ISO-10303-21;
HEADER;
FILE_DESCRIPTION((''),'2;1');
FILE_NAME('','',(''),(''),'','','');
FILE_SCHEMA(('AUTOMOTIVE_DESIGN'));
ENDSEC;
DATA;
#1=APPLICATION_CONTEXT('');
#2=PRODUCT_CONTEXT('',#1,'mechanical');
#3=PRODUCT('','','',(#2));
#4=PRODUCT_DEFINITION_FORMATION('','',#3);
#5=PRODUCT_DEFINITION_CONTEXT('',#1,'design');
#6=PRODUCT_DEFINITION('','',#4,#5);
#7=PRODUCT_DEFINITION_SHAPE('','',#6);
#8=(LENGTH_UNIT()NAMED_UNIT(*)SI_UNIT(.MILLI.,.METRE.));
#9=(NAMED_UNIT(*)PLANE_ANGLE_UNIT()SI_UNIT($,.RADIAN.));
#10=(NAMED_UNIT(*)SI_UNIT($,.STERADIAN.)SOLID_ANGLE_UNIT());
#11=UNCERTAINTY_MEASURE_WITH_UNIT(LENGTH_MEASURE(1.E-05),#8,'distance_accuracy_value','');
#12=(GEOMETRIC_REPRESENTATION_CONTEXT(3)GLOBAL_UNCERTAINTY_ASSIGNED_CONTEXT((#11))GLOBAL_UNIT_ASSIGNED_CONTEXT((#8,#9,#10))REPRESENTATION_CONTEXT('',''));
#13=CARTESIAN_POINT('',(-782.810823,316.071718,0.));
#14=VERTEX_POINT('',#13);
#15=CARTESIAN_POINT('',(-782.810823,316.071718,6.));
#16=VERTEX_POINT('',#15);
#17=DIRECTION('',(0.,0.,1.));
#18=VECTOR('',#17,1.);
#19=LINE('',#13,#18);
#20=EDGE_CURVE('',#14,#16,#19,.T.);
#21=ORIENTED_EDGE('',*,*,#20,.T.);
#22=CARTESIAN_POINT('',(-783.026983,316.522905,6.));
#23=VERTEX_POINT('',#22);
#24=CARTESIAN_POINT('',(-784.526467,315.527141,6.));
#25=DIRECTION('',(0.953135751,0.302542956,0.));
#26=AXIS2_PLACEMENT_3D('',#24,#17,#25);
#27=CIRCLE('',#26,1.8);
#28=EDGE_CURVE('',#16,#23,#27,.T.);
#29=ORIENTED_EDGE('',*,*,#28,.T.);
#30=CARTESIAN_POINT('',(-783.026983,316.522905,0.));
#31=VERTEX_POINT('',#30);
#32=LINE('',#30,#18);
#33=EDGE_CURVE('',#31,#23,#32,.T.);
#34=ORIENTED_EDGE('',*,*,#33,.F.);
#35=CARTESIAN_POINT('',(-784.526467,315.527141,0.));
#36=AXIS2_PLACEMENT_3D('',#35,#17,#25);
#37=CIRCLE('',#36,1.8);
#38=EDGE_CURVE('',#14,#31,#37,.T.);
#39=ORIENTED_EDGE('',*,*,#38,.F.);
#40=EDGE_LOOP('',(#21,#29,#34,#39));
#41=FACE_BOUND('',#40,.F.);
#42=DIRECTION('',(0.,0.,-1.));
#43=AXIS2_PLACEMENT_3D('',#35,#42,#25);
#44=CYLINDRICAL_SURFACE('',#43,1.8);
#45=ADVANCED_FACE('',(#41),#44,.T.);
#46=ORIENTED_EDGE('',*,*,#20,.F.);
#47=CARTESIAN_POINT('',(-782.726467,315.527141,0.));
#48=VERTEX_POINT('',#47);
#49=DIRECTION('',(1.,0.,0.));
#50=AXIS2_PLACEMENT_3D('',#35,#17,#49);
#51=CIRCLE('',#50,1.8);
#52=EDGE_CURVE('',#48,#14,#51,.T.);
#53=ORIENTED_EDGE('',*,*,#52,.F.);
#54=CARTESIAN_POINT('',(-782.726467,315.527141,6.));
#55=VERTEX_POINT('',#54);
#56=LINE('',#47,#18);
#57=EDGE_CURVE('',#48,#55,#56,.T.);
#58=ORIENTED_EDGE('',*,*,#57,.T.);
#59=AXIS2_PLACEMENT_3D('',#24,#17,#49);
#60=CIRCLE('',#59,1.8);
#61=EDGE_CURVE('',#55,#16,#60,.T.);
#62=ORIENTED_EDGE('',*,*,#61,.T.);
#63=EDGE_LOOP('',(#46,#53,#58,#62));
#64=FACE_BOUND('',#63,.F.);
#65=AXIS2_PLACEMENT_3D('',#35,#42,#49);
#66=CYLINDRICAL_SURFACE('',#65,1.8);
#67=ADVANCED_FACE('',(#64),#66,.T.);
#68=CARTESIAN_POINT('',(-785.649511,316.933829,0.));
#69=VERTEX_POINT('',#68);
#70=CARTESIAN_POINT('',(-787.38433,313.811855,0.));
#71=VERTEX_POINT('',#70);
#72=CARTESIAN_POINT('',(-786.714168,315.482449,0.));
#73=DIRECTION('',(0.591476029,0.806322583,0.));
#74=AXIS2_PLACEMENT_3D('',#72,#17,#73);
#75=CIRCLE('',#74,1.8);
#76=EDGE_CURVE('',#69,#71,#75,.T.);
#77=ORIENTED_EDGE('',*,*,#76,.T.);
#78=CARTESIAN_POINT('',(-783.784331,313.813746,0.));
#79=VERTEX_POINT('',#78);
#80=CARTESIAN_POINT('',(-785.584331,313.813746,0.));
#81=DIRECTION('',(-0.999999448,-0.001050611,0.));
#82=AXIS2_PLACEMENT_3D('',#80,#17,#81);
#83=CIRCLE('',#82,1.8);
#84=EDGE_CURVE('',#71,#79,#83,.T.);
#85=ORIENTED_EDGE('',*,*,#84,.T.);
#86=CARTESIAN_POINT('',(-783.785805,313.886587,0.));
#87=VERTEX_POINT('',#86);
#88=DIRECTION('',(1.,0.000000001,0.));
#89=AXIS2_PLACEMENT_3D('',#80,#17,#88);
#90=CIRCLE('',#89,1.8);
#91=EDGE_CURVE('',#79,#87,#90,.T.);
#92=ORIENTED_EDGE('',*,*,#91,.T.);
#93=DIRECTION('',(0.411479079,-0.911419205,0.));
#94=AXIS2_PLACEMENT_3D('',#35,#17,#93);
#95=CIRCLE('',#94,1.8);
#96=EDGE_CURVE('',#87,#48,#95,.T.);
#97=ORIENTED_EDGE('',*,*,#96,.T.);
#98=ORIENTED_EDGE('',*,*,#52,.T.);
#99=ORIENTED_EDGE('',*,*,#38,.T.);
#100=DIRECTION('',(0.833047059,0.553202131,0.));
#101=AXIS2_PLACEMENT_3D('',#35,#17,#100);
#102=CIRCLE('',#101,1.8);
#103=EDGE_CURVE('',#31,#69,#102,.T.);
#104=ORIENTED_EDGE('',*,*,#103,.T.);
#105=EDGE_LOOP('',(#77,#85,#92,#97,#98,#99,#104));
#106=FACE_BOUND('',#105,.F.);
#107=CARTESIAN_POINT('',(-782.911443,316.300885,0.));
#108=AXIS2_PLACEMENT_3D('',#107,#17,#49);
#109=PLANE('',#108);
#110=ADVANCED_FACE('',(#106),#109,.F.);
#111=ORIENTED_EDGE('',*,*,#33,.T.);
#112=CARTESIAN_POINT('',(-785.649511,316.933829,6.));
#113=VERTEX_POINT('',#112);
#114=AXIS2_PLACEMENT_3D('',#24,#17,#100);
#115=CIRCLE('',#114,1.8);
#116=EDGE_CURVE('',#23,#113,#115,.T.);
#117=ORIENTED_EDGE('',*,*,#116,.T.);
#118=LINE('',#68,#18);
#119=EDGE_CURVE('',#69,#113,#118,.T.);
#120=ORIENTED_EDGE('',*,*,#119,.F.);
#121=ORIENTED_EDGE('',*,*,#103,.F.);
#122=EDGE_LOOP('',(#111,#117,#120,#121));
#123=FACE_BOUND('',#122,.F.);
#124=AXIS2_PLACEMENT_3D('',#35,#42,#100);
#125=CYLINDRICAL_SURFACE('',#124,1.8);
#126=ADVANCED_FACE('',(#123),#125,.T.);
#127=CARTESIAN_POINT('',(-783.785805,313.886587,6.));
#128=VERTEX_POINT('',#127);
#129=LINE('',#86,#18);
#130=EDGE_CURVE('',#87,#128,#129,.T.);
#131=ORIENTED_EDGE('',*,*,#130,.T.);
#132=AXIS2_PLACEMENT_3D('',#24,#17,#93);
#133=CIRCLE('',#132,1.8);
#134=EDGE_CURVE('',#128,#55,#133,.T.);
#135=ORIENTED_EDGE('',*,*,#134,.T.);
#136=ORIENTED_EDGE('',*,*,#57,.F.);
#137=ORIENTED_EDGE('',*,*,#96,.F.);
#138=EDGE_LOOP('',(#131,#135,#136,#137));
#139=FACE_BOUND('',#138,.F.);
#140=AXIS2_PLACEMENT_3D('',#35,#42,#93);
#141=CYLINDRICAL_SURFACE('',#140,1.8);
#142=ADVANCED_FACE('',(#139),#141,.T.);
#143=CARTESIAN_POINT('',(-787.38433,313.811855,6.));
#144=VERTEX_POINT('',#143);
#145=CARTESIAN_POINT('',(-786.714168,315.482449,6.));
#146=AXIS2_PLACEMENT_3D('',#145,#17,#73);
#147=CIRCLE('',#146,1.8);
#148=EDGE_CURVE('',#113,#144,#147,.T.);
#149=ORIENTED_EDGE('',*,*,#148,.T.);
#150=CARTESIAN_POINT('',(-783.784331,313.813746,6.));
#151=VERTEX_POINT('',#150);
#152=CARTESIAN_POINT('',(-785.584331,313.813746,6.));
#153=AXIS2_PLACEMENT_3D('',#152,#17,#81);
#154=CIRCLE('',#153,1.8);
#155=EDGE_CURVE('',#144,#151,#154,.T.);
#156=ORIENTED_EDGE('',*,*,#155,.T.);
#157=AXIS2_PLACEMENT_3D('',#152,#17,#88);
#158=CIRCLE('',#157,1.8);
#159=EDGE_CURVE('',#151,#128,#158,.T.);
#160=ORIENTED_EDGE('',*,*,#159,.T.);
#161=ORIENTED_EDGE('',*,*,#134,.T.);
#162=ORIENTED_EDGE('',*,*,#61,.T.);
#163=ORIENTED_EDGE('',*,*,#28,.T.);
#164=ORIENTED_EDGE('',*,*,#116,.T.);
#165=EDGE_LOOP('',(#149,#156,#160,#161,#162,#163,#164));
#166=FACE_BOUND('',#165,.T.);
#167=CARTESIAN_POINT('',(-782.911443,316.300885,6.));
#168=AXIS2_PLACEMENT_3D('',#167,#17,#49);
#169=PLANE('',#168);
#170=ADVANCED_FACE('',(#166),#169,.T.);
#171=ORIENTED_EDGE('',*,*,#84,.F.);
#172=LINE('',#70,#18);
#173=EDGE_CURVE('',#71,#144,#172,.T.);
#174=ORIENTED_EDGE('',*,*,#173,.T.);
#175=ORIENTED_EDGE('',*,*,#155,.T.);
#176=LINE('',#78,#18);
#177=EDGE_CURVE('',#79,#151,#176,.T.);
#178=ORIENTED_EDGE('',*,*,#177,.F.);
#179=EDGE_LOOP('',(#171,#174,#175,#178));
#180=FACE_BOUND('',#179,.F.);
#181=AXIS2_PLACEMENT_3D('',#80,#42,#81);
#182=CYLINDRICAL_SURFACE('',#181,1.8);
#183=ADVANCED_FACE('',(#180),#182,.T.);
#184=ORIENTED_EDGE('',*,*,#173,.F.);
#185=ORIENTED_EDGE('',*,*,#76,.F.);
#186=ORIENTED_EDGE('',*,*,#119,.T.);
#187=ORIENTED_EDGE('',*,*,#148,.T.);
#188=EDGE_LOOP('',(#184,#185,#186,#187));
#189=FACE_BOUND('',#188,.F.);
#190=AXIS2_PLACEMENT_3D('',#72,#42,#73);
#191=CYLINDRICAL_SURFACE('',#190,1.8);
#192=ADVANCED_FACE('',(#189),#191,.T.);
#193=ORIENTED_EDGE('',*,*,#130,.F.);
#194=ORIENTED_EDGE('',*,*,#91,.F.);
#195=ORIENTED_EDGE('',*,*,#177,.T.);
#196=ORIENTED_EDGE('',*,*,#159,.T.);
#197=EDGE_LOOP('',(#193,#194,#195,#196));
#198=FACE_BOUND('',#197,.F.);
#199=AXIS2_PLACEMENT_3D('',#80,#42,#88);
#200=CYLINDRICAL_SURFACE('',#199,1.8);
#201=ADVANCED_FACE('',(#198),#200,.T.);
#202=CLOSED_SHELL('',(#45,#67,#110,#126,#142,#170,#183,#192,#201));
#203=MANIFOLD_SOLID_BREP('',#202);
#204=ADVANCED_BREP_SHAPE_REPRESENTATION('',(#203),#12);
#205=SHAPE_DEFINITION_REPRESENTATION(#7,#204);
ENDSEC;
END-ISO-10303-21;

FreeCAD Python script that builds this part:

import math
import FreeCAD as App
import Part
import Sketcher

V = App.Vector
Q = App.Units.Quantity

doc = App.newDocument("Part")
body = doc.addObject("PartDesign::Body", "Body")

sketch1 = body.newObject("Sketcher::SketchObject", "Sketch")
sketch1.AttachmentSupport = (doc.getObject("XY_Plane"), [""])
sketch1.MapMode = "FlatFace"
sketch1.addGeometry(Part.ArcOfCircle(Part.Circle(V(-784.53, 315.53, 0), V(0, 0, 1), 1.8), math.radians(34), math.radians(129)), False)
sketch1.addGeometry(Part.ArcOfCircle(Part.Circle(V(-786.71, 315.48, 0), V(0, 0, 1), 1.8), math.radians(54), math.radians(248)), False)
sketch1.addGeometry(Part.ArcOfCircle(Part.Circle(V(-785.58, 313.81, 0), V(0, 0, 1), 1.8), math.radians(-180), math.radians(0)), False)
sketch1.addGeometry(Part.ArcOfCircle(Part.Circle(V(-785.58, 313.81, 0), V(0, 0, 1), 1.8), math.radians(0), math.radians(2.32)), False)
sketch1.addGeometry(Part.ArcOfCircle(Part.Circle(V(-784.53, 315.53, 0), V(0, 0, 1), 1.8), math.radians(-66), math.radians(0)), False)
sketch1.addGeometry(Part.ArcOfCircle(Part.Circle(V(-784.53, 315.53, 0), V(0, 0, 1), 1.8), math.radians(0), math.radians(17.61)), False)
sketch1.addGeometry(Part.ArcOfCircle(Part.Circle(V(-784.53, 315.53, 0), V(0, 0, 1), 1.8), math.radians(17.61), math.radians(33.59)), False)
sketch1.addConstraint(Sketcher.Constraint("Coincident", 0, 2, 1, 1))
sketch1.addConstraint(Sketcher.Constraint("Coincident", 1, 2, 2, 1))
sketch1.addConstraint(Sketcher.Constraint("Tangent", 2, 2, 3, 1))
sketch1.addConstraint(Sketcher.Constraint("Coincident", 3, 2, 4, 1))
sketch1.addConstraint(Sketcher.Constraint("Tangent", 4, 2, 5, 1))
sketch1.addConstraint(Sketcher.Constraint("Tangent", 5, 2, 6, 1))
sketch1.addConstraint(Sketcher.Constraint("Tangent", 6, 2, 0, 1))
sketch1.addConstraint(Sketcher.Constraint("Coincident", 4, 3, 0, 3))
sketch1.addConstraint(Sketcher.Constraint("Equal", 0, 1))
sketch1.addConstraint(Sketcher.Constraint("Equal", 1, 2))
sketch1.addConstraint(Sketcher.Constraint("Equal", 2, 3))
sketch1.addConstraint(Sketcher.Constraint("Equal", 3, 4))
sketch1.addConstraint(Sketcher.Constraint("Horizontal", 3, 3, 2, 2))
sketch1.addConstraint(Sketcher.Constraint("Horizontal", 6, 3, 4, 2))
sketch1.addConstraint(Sketcher.Constraint("Radius", 0, Q("1.8 mm")))
sketch1.addConstraint(Sketcher.Constraint("DistanceX", 1, 3, 0, 3, Q("2.187701 mm")))
sketch1.addConstraint(Sketcher.Constraint("DistanceY", -1, 1, 0, 3, Q("315.527141 mm")))
sketch1.addConstraint(Sketcher.Constraint("DistanceX", 1, 3, -1, 1, Q("786.714168 mm")))
sketch1.addConstraint(Sketcher.Constraint("DistanceY", -1, 1, 1, 3, Q("315.482449 mm")))
sketch1.addConstraint(Sketcher.Constraint("DistanceX", 2, 3, -1, 1, Q("785.584331 mm")))
sketch1.addConstraint(Sketcher.Constraint("DistanceY", -1, 1, 5, 2, Q("316.071718 mm")))
sketch1.addConstraint(Sketcher.Constraint("DistanceY", 1, 2, 3, 3, Q("0.001891 mm")))
sketch1.addConstraint(Sketcher.Constraint("DistanceX", 6, 2, 5, 2, Q("0.21616 mm")))
pad1 = body.newObject("PartDesign::Pad", "Pad")
pad1.Profile = sketch1
pad1.Length = 6

doc.recompute()
